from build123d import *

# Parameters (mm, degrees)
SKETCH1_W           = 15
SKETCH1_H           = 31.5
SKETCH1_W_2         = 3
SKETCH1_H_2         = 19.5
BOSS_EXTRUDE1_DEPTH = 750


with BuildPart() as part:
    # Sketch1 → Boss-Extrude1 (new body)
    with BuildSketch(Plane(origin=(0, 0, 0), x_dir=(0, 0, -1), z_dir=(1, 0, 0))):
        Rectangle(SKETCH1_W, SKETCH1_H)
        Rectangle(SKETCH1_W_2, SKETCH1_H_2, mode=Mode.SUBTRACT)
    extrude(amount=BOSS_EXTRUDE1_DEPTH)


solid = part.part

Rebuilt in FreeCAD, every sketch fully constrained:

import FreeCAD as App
import Part
import Sketcher
from FreeCAD import Vector


def add_polygon(sketch, points):
    """Adds a closed chain of lines whose ends are joined by coincident constraints."""
    first, n = sketch.GeometryCount, len(points)
    for a, b in zip(points, points[1:] + points[:1]):
        sketch.addGeometry(Part.LineSegment(App.Vector(*a, 0), App.Vector(*b, 0)), False)
    for i in range(n):
        sketch.addConstraint(Sketcher.Constraint("Coincident", first + i, 2, first + (i + 1) % n, 1))

doc = App.newDocument("Part")
body = doc.addObject("PartDesign::Body", "Body")

# Sketch on YZ plane
sketch1 = body.newObject("Sketcher::SketchObject", "Sketch")
sketch1.AttachmentSupport = (doc.getObject("YZ_Plane"), [""])
sketch1.MapMode = "FlatFace"
add_polygon(sketch1, [(15.75, 7.5), (-15.75, 7.5), (-15.75, -7.5), (15.75, -7.5)])  # lines 0-3
add_polygon(sketch1, [(-9.75, -1.5), (-9.75, 1.5), (9.75, 1.5), (9.75, -1.5)])  # lines 4-7
sketch1.addConstraint([
    Sketcher.Constraint("Horizontal", 0),
    Sketcher.Constraint("Vertical", 1),
    Sketcher.Constraint("Horizontal", 2),
    Sketcher.Constraint("Vertical", 3),
    Sketcher.Constraint("Vertical", 4),
    Sketcher.Constraint("Horizontal", 5),
    Sketcher.Constraint("Vertical", 6),
    Sketcher.Constraint("Horizontal", 7),
    Sketcher.Constraint("Symmetric", 0, 2, 2, 2, -1, 1),
    Sketcher.Constraint("Symmetric", 4, 2, 6, 2, -1, 1),
    Sketcher.Constraint("DistanceY", 1, 2, 1, 1, 15.0),
    Sketcher.Constraint("DistanceY", 4, 1, 4, 2, 3.0),
    Sketcher.Constraint("DistanceX", 0, 2, 0, 1, 31.5),
    Sketcher.Constraint("DistanceX", 5, 1, 5, 2, 19.5),
])
pad1 = body.newObject("PartDesign::Pad", "Pad")
pad1.Profile = sketch1
pad1.Length = 750

doc.recompute()
